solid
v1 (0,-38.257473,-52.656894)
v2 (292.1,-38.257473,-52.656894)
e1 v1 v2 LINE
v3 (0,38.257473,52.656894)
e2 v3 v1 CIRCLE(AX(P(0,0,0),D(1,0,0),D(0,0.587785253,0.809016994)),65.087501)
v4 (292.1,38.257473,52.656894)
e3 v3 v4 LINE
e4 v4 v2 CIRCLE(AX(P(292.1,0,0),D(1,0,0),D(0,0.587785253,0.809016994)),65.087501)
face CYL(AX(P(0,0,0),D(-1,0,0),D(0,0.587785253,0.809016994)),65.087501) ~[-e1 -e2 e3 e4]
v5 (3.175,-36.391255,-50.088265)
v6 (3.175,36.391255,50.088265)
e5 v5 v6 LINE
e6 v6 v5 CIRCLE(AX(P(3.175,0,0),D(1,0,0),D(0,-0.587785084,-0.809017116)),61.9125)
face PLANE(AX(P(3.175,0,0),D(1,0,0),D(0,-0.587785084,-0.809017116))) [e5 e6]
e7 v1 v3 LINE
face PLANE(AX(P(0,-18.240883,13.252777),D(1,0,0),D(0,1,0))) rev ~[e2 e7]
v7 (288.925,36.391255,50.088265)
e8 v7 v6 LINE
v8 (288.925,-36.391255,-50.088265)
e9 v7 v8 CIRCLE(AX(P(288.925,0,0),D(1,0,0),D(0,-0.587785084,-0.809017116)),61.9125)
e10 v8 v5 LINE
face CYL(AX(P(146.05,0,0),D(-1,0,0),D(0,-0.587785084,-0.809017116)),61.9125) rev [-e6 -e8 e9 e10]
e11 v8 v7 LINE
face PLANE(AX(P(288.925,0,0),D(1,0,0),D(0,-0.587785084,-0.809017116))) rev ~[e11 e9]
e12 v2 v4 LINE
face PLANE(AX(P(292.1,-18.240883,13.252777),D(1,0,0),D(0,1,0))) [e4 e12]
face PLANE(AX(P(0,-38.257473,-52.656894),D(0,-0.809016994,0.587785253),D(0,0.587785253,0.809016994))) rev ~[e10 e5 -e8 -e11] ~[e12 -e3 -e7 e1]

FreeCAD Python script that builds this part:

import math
import FreeCAD as App
import Part
import Sketcher

V = App.Vector
Q = App.Units.Quantity

doc = App.newDocument("Part")
body = doc.addObject("PartDesign::Body", "Body")

sketch1 = body.newObject("Sketcher::SketchObject", "Sketch")
sketch1.AttachmentSupport = (doc.getObject("YZ_Plane"), [""])
sketch1.MapMode = "FlatFace"
sketch1.addGeometry([
    Part.LineSegment(V(-38.257473, -52.656894, 0), V(38.257473, 52.656894, 0)),
    Part.ArcOfCircle(Part.Circle(V(0, 0, 0), V(0, 0, 1), 65.087501), math.radians(54), math.radians(234)),
], False)
sketch1.addConstraint([
    Sketcher.Constraint("Coincident", 0, 1, 1, 2),
    Sketcher.Constraint("Coincident", 1, 1, 0, 2),
    Sketcher.Constraint("Coincident", 1, 3, -1, 1),
    Sketcher.Constraint("Angle", 0, Q("54 deg")),
    Sketcher.Constraint("Radius", 1, Q("2.5625 in")),
    Sketcher.Constraint("DistanceX", 0, 1, -1, 1, Q("38.257473 mm")),
])
pad1 = body.newObject("PartDesign::Pad", "Pad")
pad1.Profile = sketch1
pad1.Length = Q("11.5 in")

sketch2 = body.newObject("Sketcher::SketchObject", "Sketch001")
sketch2.Placement = App.Placement(V(0, 0, 0), App.Rotation(V(-1, 0, 0), V(0, 0.587785084, 0.809017116), V(0, 0.809017116, -0.587785084), "ZXY"))
sketch2.addGeometry([
    Part.LineSegment(V(-288.925, 0, 0), V(-288.925, -61.9125, 0)),
    Part.LineSegment(V(-288.925, -61.9125, 0), V(-3.175, -61.9125, 0)),
    Part.LineSegment(V(-3.175, -61.9125, 0), V(-3.175, 0, 0)),
    Part.LineSegment(V(-3.175, 0, 0), V(-288.925, 0, 0)),
], False)
sketch2.addConstraint([
    Sketcher.Constraint("Coincident", 0, 2, 1, 1),
    Sketcher.Constraint("Coincident", 1, 2, 2, 1),
    Sketcher.Constraint("Coincident", 2, 2, 3, 1),
    Sketcher.Constraint("Coincident", 3, 2, 0, 1),
    Sketcher.Constraint("Vertical", 0),
    Sketcher.Constraint("Horizontal", 1),
    Sketcher.Constraint("Vertical", 2),
    Sketcher.Constraint("Horizontal", 3),
    Sketcher.Constraint("PointOnObject", 2, 2, -1),
    Sketcher.Constraint("DistanceX", 1, 1, 1, 2, Q("11.25 in")),
    Sketcher.Constraint("DistanceY", 0, 2, 0, 1, Q("2.4375 in")),
    Sketcher.Constraint("DistanceX", 0, 2, -1, 1, Q("11.375 in")),
])
groove = body.newObject("PartDesign::Groove", "Groove")
groove.Profile = sketch2
groove.ReferenceAxis = (sketch2, ["H_Axis"])
groove.Angle = 360

doc.recompute()
